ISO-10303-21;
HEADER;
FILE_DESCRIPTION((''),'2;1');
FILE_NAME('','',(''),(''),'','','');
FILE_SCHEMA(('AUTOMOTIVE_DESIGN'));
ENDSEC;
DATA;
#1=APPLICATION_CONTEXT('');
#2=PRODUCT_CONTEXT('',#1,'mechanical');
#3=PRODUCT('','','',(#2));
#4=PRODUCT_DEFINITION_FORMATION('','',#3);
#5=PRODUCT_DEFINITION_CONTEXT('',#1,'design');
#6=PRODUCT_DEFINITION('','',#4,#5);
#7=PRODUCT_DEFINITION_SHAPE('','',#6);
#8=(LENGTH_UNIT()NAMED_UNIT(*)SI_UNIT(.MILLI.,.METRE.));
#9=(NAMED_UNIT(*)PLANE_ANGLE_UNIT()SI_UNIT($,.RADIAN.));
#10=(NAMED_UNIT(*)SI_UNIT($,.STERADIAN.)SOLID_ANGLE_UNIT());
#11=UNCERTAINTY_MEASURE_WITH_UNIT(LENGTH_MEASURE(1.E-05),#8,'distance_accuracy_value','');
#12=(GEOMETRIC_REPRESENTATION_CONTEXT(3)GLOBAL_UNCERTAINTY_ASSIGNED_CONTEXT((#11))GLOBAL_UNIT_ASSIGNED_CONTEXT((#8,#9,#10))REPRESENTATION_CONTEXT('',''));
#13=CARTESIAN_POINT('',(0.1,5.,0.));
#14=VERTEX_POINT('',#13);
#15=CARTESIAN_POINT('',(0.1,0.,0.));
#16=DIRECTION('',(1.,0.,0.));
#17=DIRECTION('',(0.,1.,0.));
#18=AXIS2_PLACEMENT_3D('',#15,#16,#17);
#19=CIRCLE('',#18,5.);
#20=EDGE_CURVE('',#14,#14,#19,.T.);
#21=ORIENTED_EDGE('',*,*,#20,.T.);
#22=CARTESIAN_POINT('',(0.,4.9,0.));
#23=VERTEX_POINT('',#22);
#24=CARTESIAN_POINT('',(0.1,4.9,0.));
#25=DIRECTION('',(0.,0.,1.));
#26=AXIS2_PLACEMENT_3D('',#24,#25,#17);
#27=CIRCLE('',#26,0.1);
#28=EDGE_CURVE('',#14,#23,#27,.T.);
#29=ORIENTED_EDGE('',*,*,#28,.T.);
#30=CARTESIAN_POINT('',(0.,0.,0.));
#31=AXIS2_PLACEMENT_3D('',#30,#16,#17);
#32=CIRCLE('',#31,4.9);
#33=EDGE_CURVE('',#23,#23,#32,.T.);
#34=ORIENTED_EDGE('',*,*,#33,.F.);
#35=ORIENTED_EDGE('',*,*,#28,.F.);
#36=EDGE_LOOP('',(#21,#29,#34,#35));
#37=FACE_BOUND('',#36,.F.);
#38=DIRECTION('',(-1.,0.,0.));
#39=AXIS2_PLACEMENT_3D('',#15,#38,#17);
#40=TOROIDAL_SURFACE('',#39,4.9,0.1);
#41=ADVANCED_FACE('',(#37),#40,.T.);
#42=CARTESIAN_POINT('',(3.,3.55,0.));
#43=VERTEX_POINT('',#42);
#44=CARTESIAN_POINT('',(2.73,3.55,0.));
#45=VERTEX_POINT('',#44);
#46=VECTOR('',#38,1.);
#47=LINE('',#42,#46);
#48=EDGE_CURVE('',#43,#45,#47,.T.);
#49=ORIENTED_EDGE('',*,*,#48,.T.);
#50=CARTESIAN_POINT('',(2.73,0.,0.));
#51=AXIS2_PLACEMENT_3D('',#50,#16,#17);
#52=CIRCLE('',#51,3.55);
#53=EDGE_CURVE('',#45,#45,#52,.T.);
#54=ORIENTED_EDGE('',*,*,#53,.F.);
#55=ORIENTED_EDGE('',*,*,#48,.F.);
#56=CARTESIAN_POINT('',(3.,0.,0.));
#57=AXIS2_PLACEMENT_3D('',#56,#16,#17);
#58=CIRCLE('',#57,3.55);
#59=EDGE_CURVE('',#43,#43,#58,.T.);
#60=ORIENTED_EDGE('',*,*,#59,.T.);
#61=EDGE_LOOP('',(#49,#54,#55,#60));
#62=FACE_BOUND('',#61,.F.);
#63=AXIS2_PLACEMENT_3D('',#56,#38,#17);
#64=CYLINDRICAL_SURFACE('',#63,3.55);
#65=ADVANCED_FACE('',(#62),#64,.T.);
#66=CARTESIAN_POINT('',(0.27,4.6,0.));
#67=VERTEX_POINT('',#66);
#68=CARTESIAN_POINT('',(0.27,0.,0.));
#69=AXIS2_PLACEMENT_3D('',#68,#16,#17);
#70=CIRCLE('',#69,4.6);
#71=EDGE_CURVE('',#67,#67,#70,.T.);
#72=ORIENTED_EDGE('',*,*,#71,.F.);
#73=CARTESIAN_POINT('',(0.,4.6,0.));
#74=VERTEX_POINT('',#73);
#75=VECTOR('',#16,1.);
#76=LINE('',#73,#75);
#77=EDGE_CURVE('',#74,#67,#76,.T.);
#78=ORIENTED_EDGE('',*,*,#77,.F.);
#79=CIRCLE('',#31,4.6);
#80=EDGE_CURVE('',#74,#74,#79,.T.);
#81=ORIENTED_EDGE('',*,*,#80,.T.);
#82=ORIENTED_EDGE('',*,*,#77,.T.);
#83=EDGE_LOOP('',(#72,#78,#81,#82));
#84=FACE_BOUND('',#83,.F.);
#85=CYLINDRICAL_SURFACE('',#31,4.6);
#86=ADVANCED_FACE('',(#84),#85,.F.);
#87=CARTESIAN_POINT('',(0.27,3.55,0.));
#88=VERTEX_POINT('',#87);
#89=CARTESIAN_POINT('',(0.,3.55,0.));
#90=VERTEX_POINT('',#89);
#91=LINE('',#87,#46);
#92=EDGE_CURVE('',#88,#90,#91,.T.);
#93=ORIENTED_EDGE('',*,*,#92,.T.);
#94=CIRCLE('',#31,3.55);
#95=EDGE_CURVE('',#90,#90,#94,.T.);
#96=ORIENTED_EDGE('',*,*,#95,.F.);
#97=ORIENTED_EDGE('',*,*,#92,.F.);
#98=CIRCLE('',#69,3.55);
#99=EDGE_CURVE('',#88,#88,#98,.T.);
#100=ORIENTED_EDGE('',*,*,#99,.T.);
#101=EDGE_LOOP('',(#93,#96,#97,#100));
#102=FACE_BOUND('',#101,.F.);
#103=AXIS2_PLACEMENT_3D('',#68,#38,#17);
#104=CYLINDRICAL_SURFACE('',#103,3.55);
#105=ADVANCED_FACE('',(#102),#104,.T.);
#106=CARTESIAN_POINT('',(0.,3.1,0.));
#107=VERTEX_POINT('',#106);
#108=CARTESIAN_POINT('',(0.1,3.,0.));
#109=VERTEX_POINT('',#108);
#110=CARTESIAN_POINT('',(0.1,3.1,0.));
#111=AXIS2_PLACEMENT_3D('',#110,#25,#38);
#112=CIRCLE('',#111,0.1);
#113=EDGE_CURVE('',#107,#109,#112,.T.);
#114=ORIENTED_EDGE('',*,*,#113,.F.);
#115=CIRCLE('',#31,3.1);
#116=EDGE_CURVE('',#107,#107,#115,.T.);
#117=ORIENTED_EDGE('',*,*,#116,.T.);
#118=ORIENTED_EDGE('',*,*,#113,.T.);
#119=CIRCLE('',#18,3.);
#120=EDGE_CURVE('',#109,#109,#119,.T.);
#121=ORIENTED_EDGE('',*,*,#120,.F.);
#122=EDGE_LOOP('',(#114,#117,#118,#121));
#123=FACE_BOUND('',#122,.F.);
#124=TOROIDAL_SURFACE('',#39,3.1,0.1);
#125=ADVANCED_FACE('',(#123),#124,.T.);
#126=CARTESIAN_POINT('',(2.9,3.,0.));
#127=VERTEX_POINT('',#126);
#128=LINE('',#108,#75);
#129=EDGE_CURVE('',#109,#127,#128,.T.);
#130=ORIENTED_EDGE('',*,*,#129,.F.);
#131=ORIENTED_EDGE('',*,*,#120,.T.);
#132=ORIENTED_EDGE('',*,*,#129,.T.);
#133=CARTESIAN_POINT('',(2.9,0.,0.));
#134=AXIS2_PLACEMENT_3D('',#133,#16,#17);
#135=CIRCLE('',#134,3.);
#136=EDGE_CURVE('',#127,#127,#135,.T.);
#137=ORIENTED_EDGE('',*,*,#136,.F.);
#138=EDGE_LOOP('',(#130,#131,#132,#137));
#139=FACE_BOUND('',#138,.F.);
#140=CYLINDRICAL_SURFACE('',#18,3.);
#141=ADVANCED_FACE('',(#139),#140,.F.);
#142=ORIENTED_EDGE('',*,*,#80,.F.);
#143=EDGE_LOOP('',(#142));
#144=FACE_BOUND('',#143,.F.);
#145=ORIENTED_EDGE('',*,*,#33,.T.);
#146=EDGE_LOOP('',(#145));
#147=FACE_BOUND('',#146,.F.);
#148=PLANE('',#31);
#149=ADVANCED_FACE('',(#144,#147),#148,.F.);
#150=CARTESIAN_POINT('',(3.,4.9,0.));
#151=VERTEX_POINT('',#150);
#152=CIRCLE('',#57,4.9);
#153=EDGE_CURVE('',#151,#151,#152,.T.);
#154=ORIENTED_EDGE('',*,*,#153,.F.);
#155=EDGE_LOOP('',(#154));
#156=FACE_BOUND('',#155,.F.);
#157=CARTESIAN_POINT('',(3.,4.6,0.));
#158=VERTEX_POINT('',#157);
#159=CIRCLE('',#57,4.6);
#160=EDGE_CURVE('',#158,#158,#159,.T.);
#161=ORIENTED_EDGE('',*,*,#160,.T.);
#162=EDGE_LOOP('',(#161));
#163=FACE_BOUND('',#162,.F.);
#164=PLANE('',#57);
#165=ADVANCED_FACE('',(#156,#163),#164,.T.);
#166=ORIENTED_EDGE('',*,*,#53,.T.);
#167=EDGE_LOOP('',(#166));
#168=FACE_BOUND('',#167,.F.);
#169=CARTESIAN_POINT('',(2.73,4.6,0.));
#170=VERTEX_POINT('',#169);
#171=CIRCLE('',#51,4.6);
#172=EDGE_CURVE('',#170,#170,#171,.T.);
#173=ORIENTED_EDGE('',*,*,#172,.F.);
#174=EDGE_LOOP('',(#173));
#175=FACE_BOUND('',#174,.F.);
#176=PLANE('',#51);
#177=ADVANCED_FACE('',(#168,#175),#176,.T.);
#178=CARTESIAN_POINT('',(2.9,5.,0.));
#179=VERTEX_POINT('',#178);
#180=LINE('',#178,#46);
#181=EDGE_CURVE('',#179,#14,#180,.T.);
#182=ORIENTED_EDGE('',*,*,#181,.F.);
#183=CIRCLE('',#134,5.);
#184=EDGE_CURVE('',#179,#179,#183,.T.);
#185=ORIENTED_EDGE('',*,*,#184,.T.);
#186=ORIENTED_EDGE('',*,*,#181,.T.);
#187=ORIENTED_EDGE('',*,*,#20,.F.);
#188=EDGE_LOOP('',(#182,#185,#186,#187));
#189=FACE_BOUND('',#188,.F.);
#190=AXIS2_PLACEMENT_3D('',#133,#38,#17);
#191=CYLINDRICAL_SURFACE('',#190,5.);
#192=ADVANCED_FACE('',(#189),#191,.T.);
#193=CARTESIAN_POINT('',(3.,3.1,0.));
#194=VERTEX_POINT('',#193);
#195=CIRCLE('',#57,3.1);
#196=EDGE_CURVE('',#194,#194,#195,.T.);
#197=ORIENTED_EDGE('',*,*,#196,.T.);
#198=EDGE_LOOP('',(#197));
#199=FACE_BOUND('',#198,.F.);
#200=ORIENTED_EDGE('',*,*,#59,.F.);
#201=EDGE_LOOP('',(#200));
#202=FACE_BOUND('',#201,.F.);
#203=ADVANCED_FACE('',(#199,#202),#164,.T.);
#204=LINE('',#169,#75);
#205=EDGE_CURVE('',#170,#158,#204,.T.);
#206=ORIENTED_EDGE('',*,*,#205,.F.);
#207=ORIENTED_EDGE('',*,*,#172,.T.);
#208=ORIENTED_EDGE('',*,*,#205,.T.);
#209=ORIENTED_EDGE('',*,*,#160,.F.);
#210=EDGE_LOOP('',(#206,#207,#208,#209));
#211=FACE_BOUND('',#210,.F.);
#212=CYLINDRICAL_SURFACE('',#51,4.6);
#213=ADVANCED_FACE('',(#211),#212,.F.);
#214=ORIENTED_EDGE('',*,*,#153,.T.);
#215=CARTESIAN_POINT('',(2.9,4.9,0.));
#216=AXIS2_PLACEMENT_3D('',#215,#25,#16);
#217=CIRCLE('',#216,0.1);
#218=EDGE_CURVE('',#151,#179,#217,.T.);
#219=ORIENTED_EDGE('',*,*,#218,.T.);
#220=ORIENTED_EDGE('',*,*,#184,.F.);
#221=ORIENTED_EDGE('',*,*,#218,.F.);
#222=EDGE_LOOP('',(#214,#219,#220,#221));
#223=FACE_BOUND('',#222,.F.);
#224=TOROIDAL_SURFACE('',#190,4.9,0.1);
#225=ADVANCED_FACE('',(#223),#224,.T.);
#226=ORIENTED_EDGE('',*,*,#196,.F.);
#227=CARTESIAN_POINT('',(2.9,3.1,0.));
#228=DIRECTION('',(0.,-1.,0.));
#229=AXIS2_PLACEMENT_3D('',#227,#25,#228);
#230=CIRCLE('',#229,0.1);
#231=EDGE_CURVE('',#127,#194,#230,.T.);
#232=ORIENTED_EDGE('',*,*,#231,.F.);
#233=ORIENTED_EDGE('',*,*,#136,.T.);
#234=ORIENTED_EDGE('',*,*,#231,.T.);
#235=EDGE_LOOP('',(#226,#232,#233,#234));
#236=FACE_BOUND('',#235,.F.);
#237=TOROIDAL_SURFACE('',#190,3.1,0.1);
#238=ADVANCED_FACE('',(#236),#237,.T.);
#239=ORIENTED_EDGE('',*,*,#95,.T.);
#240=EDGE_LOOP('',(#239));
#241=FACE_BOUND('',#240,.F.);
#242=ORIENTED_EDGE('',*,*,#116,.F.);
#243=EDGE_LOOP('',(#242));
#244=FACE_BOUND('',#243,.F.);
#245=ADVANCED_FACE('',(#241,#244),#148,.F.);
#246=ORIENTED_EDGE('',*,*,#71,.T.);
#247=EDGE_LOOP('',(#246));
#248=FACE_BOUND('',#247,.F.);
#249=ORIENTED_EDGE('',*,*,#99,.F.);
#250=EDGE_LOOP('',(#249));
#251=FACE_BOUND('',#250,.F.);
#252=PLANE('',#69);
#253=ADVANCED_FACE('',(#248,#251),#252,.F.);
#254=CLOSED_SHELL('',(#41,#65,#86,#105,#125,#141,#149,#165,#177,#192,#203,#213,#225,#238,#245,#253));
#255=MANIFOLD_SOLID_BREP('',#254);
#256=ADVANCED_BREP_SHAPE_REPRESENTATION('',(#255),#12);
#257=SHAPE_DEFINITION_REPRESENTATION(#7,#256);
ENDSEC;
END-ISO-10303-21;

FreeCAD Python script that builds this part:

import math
import FreeCAD as App
import Part
import Sketcher
Q = App.Units.Quantity

doc = App.newDocument("Part")
body = doc.addObject("PartDesign::Body", "Body")

sketch1 = body.newObject("Sketcher::SketchObject", "Sketch")
sketch1.AttachmentSupport = (doc.getObject("XY_Plane"), [""])
sketch1.MapMode = "FlatFace"
sketch1.addGeometry([
    Part.LineSegment(App.Vector(0, 3.55, 0), App.Vector(0, 3.1, 0)),
    Part.ArcOfCircle(Part.Circle(App.Vector(0.1, 3.1, 0), App.Vector(0, 0, 1), 0.1), math.radians(180), math.radians(270)),
    Part.LineSegment(App.Vector(0.1, 3, 0), App.Vector(2.9, 3, 0)),
    Part.ArcOfCircle(Part.Circle(App.Vector(2.9, 3.1, 0), App.Vector(0, 0, 1), 0.1), math.radians(-90), math.radians(0)),
    Part.LineSegment(App.Vector(3, 3.1, 0), App.Vector(3, 3.55, 0)),
    Part.LineSegment(App.Vector(3, 3.55, 0), App.Vector(2.73, 3.55, 0)),
    Part.LineSegment(App.Vector(2.73, 3.55, 0), App.Vector(2.73, 4.6, 0)),
    Part.LineSegment(App.Vector(2.73, 4.6, 0), App.Vector(3, 4.6, 0)),
    Part.LineSegment(App.Vector(3, 4.6, 0), App.Vector(3, 4.9, 0)),
    Part.ArcOfCircle(Part.Circle(App.Vector(2.9, 4.9, 0), App.Vector(0, 0, 1), 0.1), math.radians(0), math.radians(90)),
    Part.LineSegment(App.Vector(2.9, 5, 0), App.Vector(0.1, 5, 0)),
    Part.ArcOfCircle(Part.Circle(App.Vector(0.1, 4.9, 0), App.Vector(0, 0, 1), 0.1), math.radians(90), math.radians(180)),
    Part.LineSegment(App.Vector(0, 4.9, 0), App.Vector(0, 4.6, 0)),
    Part.LineSegment(App.Vector(0, 4.6, 0), App.Vector(0.27, 4.6, 0)),
    Part.LineSegment(App.Vector(0.27, 4.6, 0), App.Vector(0.27, 3.55, 0)),
    Part.LineSegment(App.Vector(0.27, 3.55, 0), App.Vector(0, 3.55, 0)),
], False)
sketch1.addConstraint([
    Sketcher.Constraint("Tangent", 0, 2, 1, 1),
    Sketcher.Constraint("Tangent", 1, 2, 2, 1),
    Sketcher.Constraint("Tangent", 2, 2, 3, 1),
    Sketcher.Constraint("Tangent", 3, 2, 4, 1),
    Sketcher.Constraint("Coincident", 4, 2, 5, 1),
    Sketcher.Constraint("Coincident", 5, 2, 6, 1),
    Sketcher.Constraint("Coincident", 6, 2, 7, 1),
    Sketcher.Constraint("Coincident", 7, 2, 8, 1),
    Sketcher.Constraint("Tangent", 8, 2, 9, 1),
    Sketcher.Constraint("Tangent", 9, 2, 10, 1),
    Sketcher.Constraint("Tangent", 10, 2, 11, 1),
    Sketcher.Constraint("Tangent", 11, 2, 12, 1),
    Sketcher.Constraint("Coincident", 12, 2, 13, 1),
    Sketcher.Constraint("Coincident", 13, 2, 14, 1),
    Sketcher.Constraint("Coincident", 14, 2, 15, 1),
    Sketcher.Constraint("Coincident", 15, 2, 0, 1),
    Sketcher.Constraint("Vertical", 0),
    Sketcher.Constraint("Horizontal", 2),
    Sketcher.Constraint("Vertical", 4),
    Sketcher.Constraint("Horizontal", 5),
    Sketcher.Constraint("Vertical", 6),
    Sketcher.Constraint("Horizontal", 7),
    Sketcher.Constraint("Vertical", 8),
    Sketcher.Constraint("Horizontal", 10),
    Sketcher.Constraint("Vertical", 12),
    Sketcher.Constraint("Horizontal", 13),
    Sketcher.Constraint("Vertical", 14),
    Sketcher.Constraint("Horizontal", 15),
    Sketcher.Constraint("Equal", 1, 3),
    Sketcher.Constraint("Equal", 3, 9),
    Sketcher.Constraint("Equal", 9, 11),
    Sketcher.Constraint("PointOnObject", 0, 2, -2),
    Sketcher.Constraint("PointOnObject", 11, 2, -2),
    Sketcher.Constraint("Horizontal", 7, 2, 12, 2),
    Sketcher.Constraint("Horizontal", 5, 2, 14, 2),
    Sketcher.Constraint("Vertical", 3, 3, 9, 3),
    Sketcher.Constraint("Equal", 7, 13),
    Sketcher.Constraint("Radius", 1, Q("0.1 mm")),
    Sketcher.Constraint("DistanceX", 2, 1, 2, 2, Q("2.8 mm")),
    Sketcher.Constraint("DistanceY", 8, 1, 8, 2, Q("0.3 mm")),
    Sketcher.Constraint("DistanceY", -1, 1, 1, 2, Q("3 mm")),
    Sketcher.Constraint("DistanceY", -1, 1, 9, 2, Q("5 mm")),
    Sketcher.Constraint("DistanceX", 5, 2, 5, 1, Q("0.27 mm")),
    Sketcher.Constraint("DistanceY", 0, 2, 0, 1, Q("0.45 mm")),
])
revolution = body.newObject("PartDesign::Revolution", "Revolution")
revolution.Profile = sketch1
revolution.ReferenceAxis = (sketch1, ["H_Axis"])
revolution.Angle = 360

doc.recompute()
